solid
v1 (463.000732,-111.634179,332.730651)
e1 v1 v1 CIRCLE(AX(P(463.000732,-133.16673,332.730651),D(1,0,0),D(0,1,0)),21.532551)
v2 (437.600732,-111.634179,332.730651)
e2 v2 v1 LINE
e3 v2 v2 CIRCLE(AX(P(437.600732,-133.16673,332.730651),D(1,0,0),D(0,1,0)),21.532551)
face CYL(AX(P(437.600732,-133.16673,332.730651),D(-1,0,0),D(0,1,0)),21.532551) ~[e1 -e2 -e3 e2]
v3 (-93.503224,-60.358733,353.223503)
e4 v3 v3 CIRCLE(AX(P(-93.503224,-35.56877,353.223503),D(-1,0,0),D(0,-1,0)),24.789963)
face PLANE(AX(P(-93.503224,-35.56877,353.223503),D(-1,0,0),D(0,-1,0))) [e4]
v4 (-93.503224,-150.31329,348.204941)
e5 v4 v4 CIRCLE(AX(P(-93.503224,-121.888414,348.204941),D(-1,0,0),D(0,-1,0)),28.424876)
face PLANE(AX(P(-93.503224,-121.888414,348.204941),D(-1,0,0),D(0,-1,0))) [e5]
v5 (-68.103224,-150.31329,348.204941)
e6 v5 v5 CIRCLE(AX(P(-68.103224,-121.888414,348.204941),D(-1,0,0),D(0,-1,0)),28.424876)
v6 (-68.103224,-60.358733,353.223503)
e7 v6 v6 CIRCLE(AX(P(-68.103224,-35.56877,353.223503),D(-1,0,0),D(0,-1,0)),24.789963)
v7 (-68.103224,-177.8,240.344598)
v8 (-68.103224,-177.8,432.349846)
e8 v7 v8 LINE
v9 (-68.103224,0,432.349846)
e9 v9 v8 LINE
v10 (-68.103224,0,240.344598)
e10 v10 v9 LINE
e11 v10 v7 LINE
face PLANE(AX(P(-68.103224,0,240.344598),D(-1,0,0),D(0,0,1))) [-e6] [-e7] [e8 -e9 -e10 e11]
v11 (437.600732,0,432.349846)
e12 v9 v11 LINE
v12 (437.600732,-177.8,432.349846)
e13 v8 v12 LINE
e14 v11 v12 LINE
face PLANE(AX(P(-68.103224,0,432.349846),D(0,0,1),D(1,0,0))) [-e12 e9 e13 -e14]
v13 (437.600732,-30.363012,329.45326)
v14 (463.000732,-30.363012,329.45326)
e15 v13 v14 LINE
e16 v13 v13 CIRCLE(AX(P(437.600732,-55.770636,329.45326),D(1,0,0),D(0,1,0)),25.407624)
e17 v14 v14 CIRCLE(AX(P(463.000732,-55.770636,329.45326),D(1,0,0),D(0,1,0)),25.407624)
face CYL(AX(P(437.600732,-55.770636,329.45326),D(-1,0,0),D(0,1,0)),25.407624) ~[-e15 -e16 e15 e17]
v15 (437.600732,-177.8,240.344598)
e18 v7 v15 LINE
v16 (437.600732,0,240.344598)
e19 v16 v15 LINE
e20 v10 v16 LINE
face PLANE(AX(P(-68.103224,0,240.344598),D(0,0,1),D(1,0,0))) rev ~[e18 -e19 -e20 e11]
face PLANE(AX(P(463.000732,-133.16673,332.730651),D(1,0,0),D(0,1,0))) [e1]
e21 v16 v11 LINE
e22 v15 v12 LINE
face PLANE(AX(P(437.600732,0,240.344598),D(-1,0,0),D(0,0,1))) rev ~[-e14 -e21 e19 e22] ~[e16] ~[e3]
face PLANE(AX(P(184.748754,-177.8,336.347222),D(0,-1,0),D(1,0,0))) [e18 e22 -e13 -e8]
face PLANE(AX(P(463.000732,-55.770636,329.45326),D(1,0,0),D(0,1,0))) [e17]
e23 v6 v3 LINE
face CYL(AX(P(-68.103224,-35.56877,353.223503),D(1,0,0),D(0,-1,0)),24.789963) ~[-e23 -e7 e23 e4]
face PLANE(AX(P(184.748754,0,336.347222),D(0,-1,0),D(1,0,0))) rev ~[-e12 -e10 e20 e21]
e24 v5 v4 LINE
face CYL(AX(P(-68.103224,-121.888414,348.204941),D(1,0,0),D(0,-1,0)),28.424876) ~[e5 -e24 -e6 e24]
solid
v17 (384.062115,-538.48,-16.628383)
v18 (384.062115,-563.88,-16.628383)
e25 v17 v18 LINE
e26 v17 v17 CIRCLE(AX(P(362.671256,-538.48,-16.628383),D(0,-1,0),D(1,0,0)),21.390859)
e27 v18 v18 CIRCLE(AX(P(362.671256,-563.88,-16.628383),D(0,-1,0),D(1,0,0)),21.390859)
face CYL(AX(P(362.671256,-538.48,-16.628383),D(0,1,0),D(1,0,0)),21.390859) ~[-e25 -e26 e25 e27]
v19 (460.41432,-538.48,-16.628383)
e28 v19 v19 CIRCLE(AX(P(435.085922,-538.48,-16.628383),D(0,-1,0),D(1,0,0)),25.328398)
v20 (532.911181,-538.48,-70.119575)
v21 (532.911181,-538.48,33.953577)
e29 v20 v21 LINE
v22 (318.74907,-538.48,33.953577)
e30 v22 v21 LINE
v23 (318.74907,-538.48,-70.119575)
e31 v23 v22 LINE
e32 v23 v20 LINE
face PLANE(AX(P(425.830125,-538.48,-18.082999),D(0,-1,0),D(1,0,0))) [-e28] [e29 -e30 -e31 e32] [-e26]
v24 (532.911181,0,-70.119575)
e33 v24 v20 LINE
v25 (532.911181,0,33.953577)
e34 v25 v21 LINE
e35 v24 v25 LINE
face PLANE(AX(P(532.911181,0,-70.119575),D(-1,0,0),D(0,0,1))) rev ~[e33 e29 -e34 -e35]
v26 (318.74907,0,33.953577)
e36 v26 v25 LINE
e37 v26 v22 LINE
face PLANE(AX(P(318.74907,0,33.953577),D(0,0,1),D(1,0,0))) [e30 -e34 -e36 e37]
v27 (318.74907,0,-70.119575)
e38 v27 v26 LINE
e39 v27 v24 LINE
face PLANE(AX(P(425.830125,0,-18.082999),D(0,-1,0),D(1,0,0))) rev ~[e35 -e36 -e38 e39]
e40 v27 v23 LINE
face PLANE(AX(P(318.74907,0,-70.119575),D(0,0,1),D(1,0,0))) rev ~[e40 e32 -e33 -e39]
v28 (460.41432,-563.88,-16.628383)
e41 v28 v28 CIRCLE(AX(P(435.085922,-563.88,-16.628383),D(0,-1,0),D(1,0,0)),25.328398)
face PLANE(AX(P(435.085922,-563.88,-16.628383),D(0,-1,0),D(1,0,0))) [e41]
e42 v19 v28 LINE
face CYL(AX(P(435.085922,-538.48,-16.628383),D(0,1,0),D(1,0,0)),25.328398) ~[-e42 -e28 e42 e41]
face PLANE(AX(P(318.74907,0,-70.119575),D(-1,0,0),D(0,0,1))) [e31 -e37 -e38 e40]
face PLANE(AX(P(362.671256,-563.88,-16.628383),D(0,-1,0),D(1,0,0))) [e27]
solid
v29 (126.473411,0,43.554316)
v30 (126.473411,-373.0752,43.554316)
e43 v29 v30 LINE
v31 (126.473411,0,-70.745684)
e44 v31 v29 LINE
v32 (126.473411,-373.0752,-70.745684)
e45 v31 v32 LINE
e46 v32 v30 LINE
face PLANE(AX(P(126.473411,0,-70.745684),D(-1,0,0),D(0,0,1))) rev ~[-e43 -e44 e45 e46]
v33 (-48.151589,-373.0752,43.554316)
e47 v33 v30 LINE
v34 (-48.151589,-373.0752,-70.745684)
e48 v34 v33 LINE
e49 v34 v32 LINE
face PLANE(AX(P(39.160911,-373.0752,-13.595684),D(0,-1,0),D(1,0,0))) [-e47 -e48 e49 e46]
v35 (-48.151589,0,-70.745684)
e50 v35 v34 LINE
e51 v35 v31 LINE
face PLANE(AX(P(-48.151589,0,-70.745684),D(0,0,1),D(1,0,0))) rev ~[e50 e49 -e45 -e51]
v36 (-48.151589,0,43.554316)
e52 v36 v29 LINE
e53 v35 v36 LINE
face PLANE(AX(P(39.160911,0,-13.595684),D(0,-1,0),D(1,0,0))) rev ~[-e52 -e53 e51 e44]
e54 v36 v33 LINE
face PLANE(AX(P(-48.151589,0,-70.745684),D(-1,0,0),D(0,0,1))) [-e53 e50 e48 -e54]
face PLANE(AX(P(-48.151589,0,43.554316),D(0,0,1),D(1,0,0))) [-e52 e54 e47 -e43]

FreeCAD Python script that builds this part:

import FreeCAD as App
import Part
import Sketcher

V = App.Vector
Q = App.Units.Quantity

doc = App.newDocument("Part")
body = doc.addObject("PartDesign::Body", "Body")

sketch1 = doc.addObject("Sketcher::SketchObject", "Sketch")
body.addObject(sketch1)
sketch1.AttachmentSupport = (doc.XZ_Plane, [""])
sketch1.MapMode = "FlatFace"
sketch1.addGeometry([
    Part.LineSegment(V(-48.151589, 43.554316, 0), V(-48.151589, -70.745684, 0)),
    Part.LineSegment(V(-48.151589, -70.745684, 0), V(126.473411, -70.745684, 0)),
    Part.LineSegment(V(126.473411, -70.745684, 0), V(126.473411, 43.554316, 0)),
    Part.LineSegment(V(126.473411, 43.554316, 0), V(-48.151589, 43.554316, 0)),
], False)
sketch1.addConstraint([
    Sketcher.Constraint("Coincident", 0, 2, 1, 1),
    Sketcher.Constraint("Coincident", 1, 2, 2, 1),
    Sketcher.Constraint("Coincident", 2, 2, 3, 1),
    Sketcher.Constraint("Coincident", 3, 2, 0, 1),
    Sketcher.Constraint("Vertical", 0),
    Sketcher.Constraint("Horizontal", 1),
    Sketcher.Constraint("Vertical", 2),
    Sketcher.Constraint("Horizontal", 3),
    Sketcher.Constraint("DistanceY", 0, 2, 0, 1, Q("4.5 in")),
    Sketcher.Constraint("DistanceX", 1, 1, 1, 2, Q("6.875 in")),
    Sketcher.Constraint("DistanceX", 0, 2, -1, 1, 48.151589),
    Sketcher.Constraint("DistanceY", 0, 2, -1, 1, 70.745684),
])
pad1 = doc.addObject("PartDesign::Pad", "Pad")
body.addObject(pad1)
pad1.Profile = sketch1
pad1.Length = Q("14.688 in")
body2 = doc.addObject("PartDesign::Body", "Body001")

sketch2 = doc.addObject("Sketcher::SketchObject", "Sketch001")
body2.addObject(sketch2)
sketch2.AttachmentSupport = (doc.getObject("XZ_Plane001"), [""])
sketch2.MapMode = "FlatFace"
sketch2.addGeometry([
    Part.LineSegment(V(318.74907, 33.953577, 0), V(318.74907, -70.119575, 0)),
    Part.LineSegment(V(318.74907, -70.119575, 0), V(532.911181, -70.119575, 0)),
    Part.LineSegment(V(532.911181, -70.119575, 0), V(532.911181, 33.953577, 0)),
    Part.LineSegment(V(532.911181, 33.953577, 0), V(318.74907, 33.953577, 0)),
], False)
sketch2.addConstraint([
    Sketcher.Constraint("Coincident", 0, 2, 1, 1),
    Sketcher.Constraint("Coincident", 1, 2, 2, 1),
    Sketcher.Constraint("Coincident", 2, 2, 3, 1),
    Sketcher.Constraint("Coincident", 3, 2, 0, 1),
    Sketcher.Constraint("Vertical", 0),
    Sketcher.Constraint("Horizontal", 1),
    Sketcher.Constraint("Vertical", 2),
    Sketcher.Constraint("Horizontal", 3),
    Sketcher.Constraint("DistanceX", 1, 1, 1, 2, 214.162111),
    Sketcher.Constraint("DistanceY", 0, 2, 0, 1, 104.073152),
    Sketcher.Constraint("DistanceX", -1, 1, 0, 2, 318.74907),
    Sketcher.Constraint("DistanceY", 0, 2, -1, 1, 70.119575),
])
pad2 = doc.addObject("PartDesign::Pad", "Pad001")
body2.addObject(pad2)
pad2.Profile = sketch2
pad2.Length = Q("21.2 in")

sketch3 = doc.addObject("Sketcher::SketchObject", "Sketch002")
body2.addObject(sketch3)
sketch3.AttachmentSupport = (doc.getObject("XZ_Plane001"), [""])
sketch3.MapMode = "FlatFace"
sketch3.AttachmentOffset = App.Placement(V(0, 0, 21.2 * 25.4), App.Rotation())
sketch3.addGeometry([
    Part.Circle(V(362.671256, -16.628383, 0), V(0, 0, 1), 21.390859),
    Part.Circle(V(435.085922, -16.628383, 0), V(0, 0, 1), 25.328398),
], False)
sketch3.addConstraint([
    Sketcher.Constraint("Horizontal", 0, 3, 1, 3),
    Sketcher.Constraint("Diameter", 0, 42.781718),
    Sketcher.Constraint("Diameter", 1, 50.656796),
    Sketcher.Constraint("DistanceX", -1, 1, 1, 3, 435.085922),
    Sketcher.Constraint("DistanceX", -1, 1, 0, 3, 362.671256),
    Sketcher.Constraint("DistanceY", 0, 3, -1, 1, 16.628383),
])
pad3 = doc.addObject("PartDesign::Pad", "Pad002")
body2.addObject(pad3)
pad3.Profile = sketch3
pad3.Length = Q("1 in")
body3 = doc.addObject("PartDesign::Body", "Body002")

sketch4 = doc.addObject("Sketcher::SketchObject", "Sketch003")
body3.addObject(sketch4)
sketch4.AttachmentSupport = (doc.getObject("XZ_Plane002"), [""])
sketch4.MapMode = "FlatFace"
sketch4.addGeometry([
    Part.LineSegment(V(-68.103224, 432.349846, 0), V(-68.103224, 240.344598, 0)),
    Part.LineSegment(V(-68.103224, 240.344598, 0), V(437.600732, 240.344598, 0)),
    Part.LineSegment(V(437.600732, 240.344598, 0), V(437.600732, 432.349846, 0)),
    Part.LineSegment(V(437.600732, 432.349846, 0), V(-68.103224, 432.349846, 0)),
], False)
sketch4.addConstraint([
    Sketcher.Constraint("Coincident", 0, 2, 1, 1),
    Sketcher.Constraint("Coincident", 1, 2, 2, 1),
    Sketcher.Constraint("Coincident", 2, 2, 3, 1),
    Sketcher.Constraint("Coincident", 3, 2, 0, 1),
    Sketcher.Constraint("Vertical", 0),
    Sketcher.Constraint("Horizontal", 1),
    Sketcher.Constraint("Vertical", 2),
    Sketcher.Constraint("Horizontal", 3),
    Sketcher.Constraint("DistanceY", -1, 1, 0, 2, 240.344598),
    Sketcher.Constraint("DistanceX", 1, 1, 1, 2, 505.703956),
    Sketcher.Constraint("DistanceY", 0, 2, 0, 1, 192.005247),
    Sketcher.Constraint("DistanceX", -1, 1, 1, 2, 437.600732),
])
pad4 = doc.addObject("PartDesign::Pad", "Pad003")
body3.addObject(pad4)
pad4.Profile = sketch4
pad4.Length = Q("7 in")

sketch5 = doc.addObject("Sketcher::SketchObject", "Sketch004")
body3.addObject(sketch5)
sketch5.AttachmentSupport = (doc.getObject("YZ_Plane002"), [""])
sketch5.MapMode = "FlatFace"
sketch5.AttachmentOffset = App.Placement(V(0, 0, -68.103224), App.Rotation())
sketch5.addGeometry([
    Part.Circle(V(-35.56877, 353.223503, 0), V(0, 0, 1), 24.789963),
    Part.Circle(V(-121.888414, 348.204941, 0), V(0, 0, 1), 28.424876),
], False)
sketch5.addConstraint([
    Sketcher.Constraint("Diameter", 0, 49.579926),
    Sketcher.Constraint("Diameter", 1, 56.849752),
    Sketcher.Constraint("DistanceX", 0, 3, -1, 1, 35.56877),
    Sketcher.Constraint("DistanceY", -1, 1, 1, 3, 348.204941),
    Sketcher.Constraint("DistanceY", 1, 3, 0, 3, 5.018562),
    Sketcher.Constraint("DistanceX", 1, 3, -1, 1, 121.888414),
])
pad5 = doc.addObject("PartDesign::Pad", "Pad004")
body3.addObject(pad5)
pad5.Profile = sketch5
pad5.Length = Q("1 in")
pad5.Reversed = True

sketch6 = doc.addObject("Sketcher::SketchObject", "Sketch005")
body3.addObject(sketch6)
sketch6.AttachmentSupport = (doc.getObject("YZ_Plane002"), [""])
sketch6.MapMode = "FlatFace"
sketch6.AttachmentOffset = App.Placement(V(0, 0, 437.600732), App.Rotation())
sketch6.addGeometry([
    Part.Circle(V(-133.16673, 332.730651, 0), V(0, 0, 1), 21.532551),
    Part.Circle(V(-55.770636, 329.45326, 0), V(0, 0, 1), 25.407624),
], False)
sketch6.addConstraint([
    Sketcher.Constraint("Diameter", 0, 43.065102),
    Sketcher.Constraint("Diameter", 1, 50.815248),
    Sketcher.Constraint("DistanceX", 0, 3, -1, 1, 133.16673),
    Sketcher.Constraint("DistanceY", -1, 1, 0, 3, 332.730651),
    Sketcher.Constraint("DistanceY", -1, 1, 1, 3, 329.45326),
    Sketcher.Constraint("DistanceX", 1, 3, -1, 1, 55.770636),
])
pad6 = doc.addObject("PartDesign::Pad", "Pad005")
body3.addObject(pad6)
pad6.Profile = sketch6
pad6.Length = Q("1 in")

doc.recompute()
